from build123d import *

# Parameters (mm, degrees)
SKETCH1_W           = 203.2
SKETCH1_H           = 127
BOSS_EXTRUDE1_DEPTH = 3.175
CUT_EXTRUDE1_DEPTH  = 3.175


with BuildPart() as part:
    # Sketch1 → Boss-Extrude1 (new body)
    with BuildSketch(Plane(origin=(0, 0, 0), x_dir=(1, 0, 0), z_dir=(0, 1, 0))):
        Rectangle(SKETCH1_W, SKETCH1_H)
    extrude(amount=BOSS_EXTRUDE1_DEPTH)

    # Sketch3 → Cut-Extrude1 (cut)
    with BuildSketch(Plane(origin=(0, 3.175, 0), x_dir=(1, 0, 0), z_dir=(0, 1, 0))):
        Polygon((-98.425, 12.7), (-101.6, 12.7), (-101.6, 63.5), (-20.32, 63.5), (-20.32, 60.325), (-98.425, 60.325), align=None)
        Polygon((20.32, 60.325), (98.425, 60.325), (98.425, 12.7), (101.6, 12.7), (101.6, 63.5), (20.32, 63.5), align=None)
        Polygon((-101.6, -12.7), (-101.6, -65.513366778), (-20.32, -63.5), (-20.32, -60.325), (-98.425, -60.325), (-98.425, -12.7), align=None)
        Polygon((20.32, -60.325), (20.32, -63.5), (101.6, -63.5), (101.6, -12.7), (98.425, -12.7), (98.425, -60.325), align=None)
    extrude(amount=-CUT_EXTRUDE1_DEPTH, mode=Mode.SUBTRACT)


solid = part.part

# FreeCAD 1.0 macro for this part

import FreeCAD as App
import Part
import Sketcher

V = App.Vector
Q = App.Units.Quantity


def add_polygon(sketch, points):
    """Adds a closed chain of lines whose ends are joined by coincident constraints."""
    first, n = sketch.GeometryCount, len(points)
    for a, b in zip(points, points[1:] + points[:1]):
        sketch.addGeometry(Part.LineSegment(App.Vector(*a, 0), App.Vector(*b, 0)), False)
    for i in range(n):
        sketch.addConstraint(Sketcher.Constraint("Coincident", first + i, 2, first + (i + 1) % n, 1))

doc = App.newDocument("Part")
params = doc.addObject("Spreadsheet::Sheet", "Params")
for row, (alias, value) in enumerate([
    ("sketch1_width", "8 in"),
    ("sketch1_height", "5 in"),
    ("pad1_length", "0.125 in"),
    ("sketch2_height", "2 in"),
    ("sketch2_width", "3.2 in"),
    ("sketch2_width2", "0.125 in"),
    ("pocket1_length", "0.125 in"),
], start=1):
    params.set(f"A{row}", alias)
    params.set(f"B{row}", "=" + value)
    params.setAlias(f"B{row}", alias)

body = doc.addObject("PartDesign::Body", "Body")

# Sketch on XZ plane
sketch1 = body.newObject("Sketcher::SketchObject", "Sketch")
sketch1.AttachmentSupport = (doc.getObject("XZ_Plane"), [""])
sketch1.MapMode = "FlatFace"
add_polygon(sketch1, [(-102, -64), (-102, 64), (102, 64), (102, -64)])  # lines 0-3
sketch1.addConstraint(Sketcher.Constraint("Vertical", 0))
sketch1.addConstraint(Sketcher.Constraint("Horizontal", 1))
sketch1.addConstraint(Sketcher.Constraint("Vertical", 2))
sketch1.addConstraint(Sketcher.Constraint("Horizontal", 3))
sketch1.addConstraint(Sketcher.Constraint("Symmetric", 0, 2, 2, 2, -1, 1))
sketch1.addConstraint(Sketcher.Constraint("DistanceX", 1, 1, 1, 2, Q("8 in")))
sketch1.addConstraint(Sketcher.Constraint("DistanceY", 0, 1, 0, 2, Q("5 in")))
sketch1.setExpression("Constraints[9]", "Params.sketch1_width")
sketch1.setExpression("Constraints[10]", "Params.sketch1_height")
pad1 = body.newObject("PartDesign::Pad", "Pad")
pad1.Profile = sketch1
pad1.setExpression("Length", "Params.pad1_length")
pad1.Reversed = True

# Sketch on XZ plane
sketch2 = body.newObject("Sketcher::SketchObject", "Sketch001")
sketch2.AttachmentSupport = (doc.getObject("XZ_Plane"), [""])
sketch2.MapMode = "FlatFace"
sketch2.AttachmentOffset = App.Placement(V(0, 0, -0.125 * 25.4), App.Rotation())
add_polygon(sketch2, [(-101.6, -12.7), (-98.4, -12.7), (-98.4, -60.3), (-20.3, -60.3), (-20.3, -63.5), (-101.6, -63.5)])  # lines 0-5
add_polygon(sketch2, [(20.3, -60.3), (98.4, -60.3), (98.4, -12.7), (101.6, -12.7), (101.6, -63.5), (20.3, -63.5)])  # lines 6-11
add_polygon(sketch2, [(-101.6, 12.7), (-101.6, 65.5), (-20.3, 63.5), (-20.3, 60.3), (-98.4, 60.3), (-98.4, 12.7)])  # lines 12-17
add_polygon(sketch2, [(20.3, 60.3), (20.3, 63.5), (101.6, 63.5), (101.6, 12.7), (98.4, 12.7), (98.4, 60.3)])  # lines 18-23
sketch2.addConstraint(Sketcher.Constraint("Horizontal", 0))
sketch2.addConstraint(Sketcher.Constraint("Vertical", 1))
sketch2.addConstraint(Sketcher.Constraint("Horizontal", 2))
sketch2.addConstraint(Sketcher.Constraint("Vertical", 3))
sketch2.addConstraint(Sketcher.Constraint("Horizontal", 4))
sketch2.addConstraint(Sketcher.Constraint("Vertical", 5))
sketch2.addConstraint(Sketcher.Constraint("Horizontal", 6))
sketch2.addConstraint(Sketcher.Constraint("Vertical", 7))
sketch2.addConstraint(Sketcher.Constraint("Horizontal", 8))
sketch2.addConstraint(Sketcher.Constraint("Vertical", 9))
sketch2.addConstraint(Sketcher.Constraint("Horizontal", 10))
sketch2.addConstraint(Sketcher.Constraint("Vertical", 11))
sketch2.addConstraint(Sketcher.Constraint("Vertical", 12))
sketch2.addConstraint(Sketcher.Constraint("Vertical", 14))
sketch2.addConstraint(Sketcher.Constraint("Horizontal", 15))
sketch2.addConstraint(Sketcher.Constraint("Vertical", 16))
sketch2.addConstraint(Sketcher.Constraint("Horizontal", 17))
sketch2.addConstraint(Sketcher.Constraint("Vertical", 18))
sketch2.addConstraint(Sketcher.Constraint("Horizontal", 19))
sketch2.addConstraint(Sketcher.Constraint("Vertical", 20))
sketch2.addConstraint(Sketcher.Constraint("Horizontal", 21))
sketch2.addConstraint(Sketcher.Constraint("Vertical", 22))
sketch2.addConstraint(Sketcher.Constraint("Horizontal", 23))
sketch2.addConstraint(Sketcher.Constraint("Symmetric", 10, 2, 13, 2, -1, 1))
sketch2.addConstraint(Sketcher.Constraint("Symmetric", 6, 2, 15, 2, -1, 1))
sketch2.addConstraint(Sketcher.Constraint("Symmetric", 8, 2, 17, 2, -1, 1))
sketch2.addConstraint(Sketcher.Constraint("Symmetric", 3, 2, 18, 2, -1, 1))
sketch2.addConstraint(Sketcher.Constraint("Symmetric", 5, 2, 20, 2, -1, 1))
sketch2.addConstraint(Sketcher.Constraint("Symmetric", 1, 2, 22, 2, -1, 1))
sketch2.addConstraint(Sketcher.Constraint("Symmetric", 1, 2, 6, 2, -2))
sketch2.addConstraint(Sketcher.Constraint("Symmetric", 5, 2, 8, 2, -2))
sketch2.addConstraint(Sketcher.Constraint("Symmetric", 3, 2, 10, 2, -2))
sketch2.addConstraint(Sketcher.Constraint("Equal", 21, 3))
sketch2.addConstraint(Sketcher.Constraint("DistanceY", 5, 1, 5, 2, Q("2 in")))
sketch2.addConstraint(Sketcher.Constraint("DistanceX", 4, 2, 4, 1, Q("3.2 in")))
sketch2.addConstraint(Sketcher.Constraint("DistanceX", 4, 2, -1, 1, Q("4 in")))
sketch2.addConstraint(Sketcher.Constraint("DistanceY", 0, 2, 13, 2, Q("3 in")))
sketch2.addConstraint(Sketcher.Constraint("DistanceX", 0, 1, 0, 2, Q("0.125 in")))
sketch2.addConstraint(Sketcher.Constraint("DistanceY", 12, 1, 12, 2, Q("52.813367 mm")))
sketch2.setExpression("Constraints[57]", "Params.sketch2_height")
sketch2.setExpression("Constraints[58]", "Params.sketch2_width")
sketch2.setExpression("Constraints[61]", "Params.sketch2_width2")
pocket1 = body.newObject("PartDesign::Pocket", "Pocket")
pocket1.Profile = sketch2
pocket1.setExpression("Length", "Params.pocket1_length")
pocket1.Reversed = True

doc.recompute()
